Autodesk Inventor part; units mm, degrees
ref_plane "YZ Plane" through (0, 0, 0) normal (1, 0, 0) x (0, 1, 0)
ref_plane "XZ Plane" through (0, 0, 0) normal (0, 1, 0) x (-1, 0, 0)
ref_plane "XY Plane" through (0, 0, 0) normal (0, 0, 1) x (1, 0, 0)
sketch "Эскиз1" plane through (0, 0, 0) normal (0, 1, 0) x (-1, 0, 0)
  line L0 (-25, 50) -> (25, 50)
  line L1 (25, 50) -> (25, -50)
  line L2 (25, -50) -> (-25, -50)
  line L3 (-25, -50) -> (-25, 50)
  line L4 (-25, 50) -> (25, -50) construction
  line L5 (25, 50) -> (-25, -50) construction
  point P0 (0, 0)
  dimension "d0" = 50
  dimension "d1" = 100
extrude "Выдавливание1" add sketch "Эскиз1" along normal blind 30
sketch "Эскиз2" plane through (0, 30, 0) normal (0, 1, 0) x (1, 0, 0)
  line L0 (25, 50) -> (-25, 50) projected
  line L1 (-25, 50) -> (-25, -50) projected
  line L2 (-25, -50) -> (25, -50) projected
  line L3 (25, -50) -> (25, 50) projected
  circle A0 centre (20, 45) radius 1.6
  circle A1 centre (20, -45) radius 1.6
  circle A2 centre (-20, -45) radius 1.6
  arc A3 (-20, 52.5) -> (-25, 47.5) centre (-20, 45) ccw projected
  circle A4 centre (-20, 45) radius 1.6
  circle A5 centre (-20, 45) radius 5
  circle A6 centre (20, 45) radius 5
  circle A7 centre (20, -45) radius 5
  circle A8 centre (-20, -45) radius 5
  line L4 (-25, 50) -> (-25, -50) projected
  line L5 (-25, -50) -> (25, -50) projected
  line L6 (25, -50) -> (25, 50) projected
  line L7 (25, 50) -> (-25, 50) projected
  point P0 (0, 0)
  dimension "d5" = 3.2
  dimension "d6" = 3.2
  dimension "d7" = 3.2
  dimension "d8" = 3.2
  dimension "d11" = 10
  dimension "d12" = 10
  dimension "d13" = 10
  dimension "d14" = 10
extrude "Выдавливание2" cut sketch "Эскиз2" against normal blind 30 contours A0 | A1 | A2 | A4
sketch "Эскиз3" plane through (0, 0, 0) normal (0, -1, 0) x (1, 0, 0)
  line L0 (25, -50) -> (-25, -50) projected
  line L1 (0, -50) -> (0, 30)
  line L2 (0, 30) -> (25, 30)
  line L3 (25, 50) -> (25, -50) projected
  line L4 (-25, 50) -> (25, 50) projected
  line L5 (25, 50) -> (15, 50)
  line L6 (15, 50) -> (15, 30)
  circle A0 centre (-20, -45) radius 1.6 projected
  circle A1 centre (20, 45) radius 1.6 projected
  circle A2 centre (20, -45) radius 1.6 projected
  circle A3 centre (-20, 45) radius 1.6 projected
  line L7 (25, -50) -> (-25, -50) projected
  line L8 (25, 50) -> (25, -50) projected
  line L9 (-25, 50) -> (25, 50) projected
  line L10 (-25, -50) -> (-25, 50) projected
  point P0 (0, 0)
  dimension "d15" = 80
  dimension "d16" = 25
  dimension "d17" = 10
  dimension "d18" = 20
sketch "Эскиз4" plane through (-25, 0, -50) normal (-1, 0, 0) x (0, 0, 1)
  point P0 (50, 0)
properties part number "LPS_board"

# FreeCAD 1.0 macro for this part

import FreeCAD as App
import Part
import Sketcher
from FreeCAD import Vector

doc = App.newDocument("Part")
body = doc.addObject("PartDesign::Body", "Body")

# Sketch on XZ plane
sketch1 = body.newObject("Sketcher::SketchObject", "Sketch")
sketch1.AttachmentSupport = (doc.getObject("XZ_Plane"), [""])
sketch1.MapMode = "FlatFace"
sketch1.addGeometry(Part.LineSegment(Vector(-25, 50, 0), Vector(25, 50, 0)), False)
sketch1.addGeometry(Part.LineSegment(Vector(25, 50, 0), Vector(25, -50, 0)), False)
sketch1.addGeometry(Part.LineSegment(Vector(25, -50, 0), Vector(-25, -50, 0)), False)
sketch1.addGeometry(Part.LineSegment(Vector(-25, -50, 0), Vector(-25, 50, 0)), False)
sketch1.addConstraint(Sketcher.Constraint("Coincident", 0, 2, 1, 1))
sketch1.addConstraint(Sketcher.Constraint("Coincident", 1, 2, 2, 1))
sketch1.addConstraint(Sketcher.Constraint("Coincident", 2, 2, 3, 1))
sketch1.addConstraint(Sketcher.Constraint("Coincident", 3, 2, 0, 1))
sketch1.addConstraint(Sketcher.Constraint("Horizontal", 0))
sketch1.addConstraint(Sketcher.Constraint("Vertical", 1))
sketch1.addConstraint(Sketcher.Constraint("Horizontal", 2))
sketch1.addConstraint(Sketcher.Constraint("Vertical", 3))
sketch1.addConstraint(Sketcher.Constraint("Symmetric", 0, 2, 2, 2, -1, 1))
sketch1.addConstraint(Sketcher.Constraint("DistanceX", 0, 1, 0, 2, 50.0))
sketch1.addConstraint(Sketcher.Constraint("DistanceY", 1, 2, 1, 1, 100.0))
pad1 = body.newObject("PartDesign::Pad", "Pad")
pad1.Profile = sketch1
pad1.Length = 30
pad1.Reversed = True

# Sketch on XZ plane
sketch2 = body.newObject("Sketcher::SketchObject", "Sketch001")
sketch2.AttachmentSupport = (doc.getObject("XZ_Plane"), [""])
sketch2.MapMode = "FlatFace"
sketch2.AttachmentOffset = App.Placement(Vector(0, 0, -30), App.Rotation())
sketch2.addGeometry(Part.Circle(Vector(20, -45, 0), Vector(0, 0, 1), 1.6), False)
sketch2.addGeometry(Part.Circle(Vector(20, 45, 0), Vector(0, 0, 1), 1.6), False)
sketch2.addGeometry(Part.Circle(Vector(-20, 45, 0), Vector(0, 0, 1), 1.6), False)
sketch2.addGeometry(Part.Circle(Vector(-20, -45, 0), Vector(0, 0, 1), 1.6), False)
sketch2.addConstraint(Sketcher.Constraint("Equal", 0, 1))
sketch2.addConstraint(Sketcher.Constraint("Equal", 1, 2))
sketch2.addConstraint(Sketcher.Constraint("Equal", 2, 3))
sketch2.addConstraint(Sketcher.Constraint("Symmetric", 0, 3, 2, 3, -1, 1))
sketch2.addConstraint(Sketcher.Constraint("Symmetric", 1, 3, 3, 3, -1, 1))
sketch2.addConstraint(Sketcher.Constraint("Symmetric", 1, 3, 2, 3, -2))
sketch2.addConstraint(Sketcher.Constraint("Diameter", 0, 3.2))
sketch2.addConstraint(Sketcher.Constraint("DistanceX", -1, 1, 0, 3, 20.0))
sketch2.addConstraint(Sketcher.Constraint("DistanceY", 0, 3, -1, 1, 45.0))
pocket1 = body.newObject("PartDesign::Pocket", "Pocket")
pocket1.Profile = sketch2
pocket1.Length = 30
pocket1.Reversed = True

doc.recompute()
